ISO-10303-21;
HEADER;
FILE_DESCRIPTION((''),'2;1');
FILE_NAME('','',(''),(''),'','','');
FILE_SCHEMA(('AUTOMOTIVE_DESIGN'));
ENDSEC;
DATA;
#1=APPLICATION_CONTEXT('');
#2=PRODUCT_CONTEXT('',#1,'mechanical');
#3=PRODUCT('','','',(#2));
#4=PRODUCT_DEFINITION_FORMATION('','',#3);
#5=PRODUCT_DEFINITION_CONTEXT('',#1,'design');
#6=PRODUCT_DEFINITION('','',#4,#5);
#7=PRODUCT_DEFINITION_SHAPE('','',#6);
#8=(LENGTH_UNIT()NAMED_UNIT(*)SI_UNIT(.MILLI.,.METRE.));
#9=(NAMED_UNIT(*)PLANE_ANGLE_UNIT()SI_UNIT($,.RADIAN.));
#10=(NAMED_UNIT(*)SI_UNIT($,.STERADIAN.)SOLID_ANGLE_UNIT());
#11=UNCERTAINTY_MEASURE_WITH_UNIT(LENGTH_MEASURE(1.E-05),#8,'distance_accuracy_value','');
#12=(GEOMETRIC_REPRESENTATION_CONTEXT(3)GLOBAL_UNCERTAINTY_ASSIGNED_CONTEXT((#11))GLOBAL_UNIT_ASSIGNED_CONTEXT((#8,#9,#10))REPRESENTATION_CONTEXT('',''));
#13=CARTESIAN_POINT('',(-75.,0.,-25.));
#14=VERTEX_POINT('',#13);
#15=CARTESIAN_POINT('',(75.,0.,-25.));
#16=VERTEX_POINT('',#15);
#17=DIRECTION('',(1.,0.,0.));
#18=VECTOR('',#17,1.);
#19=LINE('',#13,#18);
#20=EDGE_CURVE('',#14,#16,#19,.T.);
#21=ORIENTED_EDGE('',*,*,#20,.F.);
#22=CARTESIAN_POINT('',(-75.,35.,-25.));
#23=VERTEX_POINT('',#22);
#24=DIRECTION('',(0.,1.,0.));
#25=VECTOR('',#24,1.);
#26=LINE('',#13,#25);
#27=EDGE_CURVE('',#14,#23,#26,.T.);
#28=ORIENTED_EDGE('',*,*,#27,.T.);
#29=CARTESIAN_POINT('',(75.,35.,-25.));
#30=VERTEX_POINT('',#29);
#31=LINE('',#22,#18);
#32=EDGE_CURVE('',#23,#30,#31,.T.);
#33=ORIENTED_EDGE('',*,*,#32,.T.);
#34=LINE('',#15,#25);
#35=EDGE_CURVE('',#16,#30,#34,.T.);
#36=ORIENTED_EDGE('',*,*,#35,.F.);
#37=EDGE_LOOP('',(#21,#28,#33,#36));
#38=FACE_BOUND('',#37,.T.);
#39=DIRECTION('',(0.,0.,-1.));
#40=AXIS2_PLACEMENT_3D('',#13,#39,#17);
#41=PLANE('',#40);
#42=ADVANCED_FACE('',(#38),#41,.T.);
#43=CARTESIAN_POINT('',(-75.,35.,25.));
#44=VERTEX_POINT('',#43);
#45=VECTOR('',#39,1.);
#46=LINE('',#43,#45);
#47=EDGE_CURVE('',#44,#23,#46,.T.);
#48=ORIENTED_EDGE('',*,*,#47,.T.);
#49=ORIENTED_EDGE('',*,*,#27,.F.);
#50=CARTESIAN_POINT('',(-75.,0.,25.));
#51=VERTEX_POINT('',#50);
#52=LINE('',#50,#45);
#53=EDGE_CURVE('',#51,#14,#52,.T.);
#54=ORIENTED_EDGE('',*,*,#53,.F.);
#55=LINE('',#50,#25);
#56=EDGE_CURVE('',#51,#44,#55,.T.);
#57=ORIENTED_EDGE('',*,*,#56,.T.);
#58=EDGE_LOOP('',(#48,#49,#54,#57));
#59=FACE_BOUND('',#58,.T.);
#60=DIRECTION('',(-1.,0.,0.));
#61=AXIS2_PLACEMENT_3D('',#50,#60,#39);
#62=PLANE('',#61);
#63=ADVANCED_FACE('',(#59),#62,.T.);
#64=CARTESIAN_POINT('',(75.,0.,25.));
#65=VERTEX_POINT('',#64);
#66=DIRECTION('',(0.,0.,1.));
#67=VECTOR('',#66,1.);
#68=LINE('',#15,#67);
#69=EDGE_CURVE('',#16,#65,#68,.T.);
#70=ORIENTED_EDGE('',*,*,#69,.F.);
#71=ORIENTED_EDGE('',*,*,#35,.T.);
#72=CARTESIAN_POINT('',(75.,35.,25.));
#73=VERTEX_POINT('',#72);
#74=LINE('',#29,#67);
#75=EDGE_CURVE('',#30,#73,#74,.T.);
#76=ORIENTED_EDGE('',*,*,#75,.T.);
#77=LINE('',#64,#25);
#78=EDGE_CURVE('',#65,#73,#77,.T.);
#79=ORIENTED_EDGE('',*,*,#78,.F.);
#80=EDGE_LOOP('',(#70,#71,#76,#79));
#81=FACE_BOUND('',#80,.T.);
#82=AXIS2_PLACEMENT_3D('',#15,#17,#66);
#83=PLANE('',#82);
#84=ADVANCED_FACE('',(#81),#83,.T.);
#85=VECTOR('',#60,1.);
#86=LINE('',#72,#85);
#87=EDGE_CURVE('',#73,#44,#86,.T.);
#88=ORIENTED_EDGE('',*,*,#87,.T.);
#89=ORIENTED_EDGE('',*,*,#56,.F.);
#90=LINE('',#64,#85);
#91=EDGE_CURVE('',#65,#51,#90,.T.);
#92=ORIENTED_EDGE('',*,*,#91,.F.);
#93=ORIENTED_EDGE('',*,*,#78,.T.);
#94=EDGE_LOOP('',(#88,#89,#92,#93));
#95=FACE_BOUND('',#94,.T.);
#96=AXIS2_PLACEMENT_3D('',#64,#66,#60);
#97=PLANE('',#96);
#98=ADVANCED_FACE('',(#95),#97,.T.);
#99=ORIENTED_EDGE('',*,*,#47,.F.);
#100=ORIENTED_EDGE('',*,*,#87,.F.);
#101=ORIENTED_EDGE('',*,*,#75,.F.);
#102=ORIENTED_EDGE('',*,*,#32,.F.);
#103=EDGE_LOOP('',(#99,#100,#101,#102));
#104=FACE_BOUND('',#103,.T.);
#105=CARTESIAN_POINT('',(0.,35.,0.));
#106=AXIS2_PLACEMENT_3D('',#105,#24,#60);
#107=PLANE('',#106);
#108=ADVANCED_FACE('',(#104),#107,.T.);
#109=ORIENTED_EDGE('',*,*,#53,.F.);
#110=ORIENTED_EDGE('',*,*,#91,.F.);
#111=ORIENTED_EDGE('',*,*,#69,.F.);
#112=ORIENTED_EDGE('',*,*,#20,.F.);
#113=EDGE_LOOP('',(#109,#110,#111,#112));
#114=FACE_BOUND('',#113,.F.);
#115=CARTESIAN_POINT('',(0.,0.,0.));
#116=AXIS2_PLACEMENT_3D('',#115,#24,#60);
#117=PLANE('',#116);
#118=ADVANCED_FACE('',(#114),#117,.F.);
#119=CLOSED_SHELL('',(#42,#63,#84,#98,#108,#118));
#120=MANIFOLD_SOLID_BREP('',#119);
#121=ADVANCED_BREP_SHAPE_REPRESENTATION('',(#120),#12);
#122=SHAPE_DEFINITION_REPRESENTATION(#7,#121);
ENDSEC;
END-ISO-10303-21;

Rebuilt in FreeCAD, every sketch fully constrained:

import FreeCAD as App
import Part
import Sketcher

V = App.Vector


def add_polygon(sketch, points):
    """Adds a closed chain of lines whose ends are joined by coincident constraints."""
    first, n = sketch.GeometryCount, len(points)
    for a, b in zip(points, points[1:] + points[:1]):
        sketch.addGeometry(Part.LineSegment(App.Vector(*a, 0), App.Vector(*b, 0)), False)
    for i in range(n):
        sketch.addConstraint(Sketcher.Constraint("Coincident", first + i, 2, first + (i + 1) % n, 1))

doc = App.newDocument("Part")
params = doc.addObject("Spreadsheet::Sheet", "Params")
for row, (alias, value) in enumerate([
    ("sketch1_width", "150 mm"),
    ("sketch1_height", "50 mm"),
    ("pad1_length", "35 mm"),
], start=1):
    params.set(f"A{row}", alias)
    params.set(f"B{row}", "=" + value)
    params.setAlias(f"B{row}", alias)

body = doc.addObject("PartDesign::Body", "Body")

# Sketch on XZ plane
sketch1 = body.newObject("Sketcher::SketchObject", "Sketch")
sketch1.AttachmentSupport = (doc.getObject("XZ_Plane"), [""])
sketch1.MapMode = "FlatFace"
add_polygon(sketch1, [(-75, 25), (75, 25), (75, -25), (-75, -25)])  # lines 0-3
sketch1.addConstraint(Sketcher.Constraint("Horizontal", 0))
sketch1.addConstraint(Sketcher.Constraint("Vertical", 1))
sketch1.addConstraint(Sketcher.Constraint("Horizontal", 2))
sketch1.addConstraint(Sketcher.Constraint("Vertical", 3))
sketch1.addConstraint(Sketcher.Constraint("Symmetric", 0, 2, 2, 2, -1, 1))
sketch1.addConstraint(Sketcher.Constraint("DistanceX", 0, 1, 0, 2, 150.0))
sketch1.addConstraint(Sketcher.Constraint("DistanceY", 1, 2, 1, 1, 50.0))
sketch1.setExpression("Constraints[9]", "Params.sketch1_width")
sketch1.setExpression("Constraints[10]", "Params.sketch1_height")
pad1 = body.newObject("PartDesign::Pad", "Pad")
pad1.Profile = sketch1
pad1.setExpression("Length", "Params.pad1_length")
pad1.Reversed = True

doc.recompute()
